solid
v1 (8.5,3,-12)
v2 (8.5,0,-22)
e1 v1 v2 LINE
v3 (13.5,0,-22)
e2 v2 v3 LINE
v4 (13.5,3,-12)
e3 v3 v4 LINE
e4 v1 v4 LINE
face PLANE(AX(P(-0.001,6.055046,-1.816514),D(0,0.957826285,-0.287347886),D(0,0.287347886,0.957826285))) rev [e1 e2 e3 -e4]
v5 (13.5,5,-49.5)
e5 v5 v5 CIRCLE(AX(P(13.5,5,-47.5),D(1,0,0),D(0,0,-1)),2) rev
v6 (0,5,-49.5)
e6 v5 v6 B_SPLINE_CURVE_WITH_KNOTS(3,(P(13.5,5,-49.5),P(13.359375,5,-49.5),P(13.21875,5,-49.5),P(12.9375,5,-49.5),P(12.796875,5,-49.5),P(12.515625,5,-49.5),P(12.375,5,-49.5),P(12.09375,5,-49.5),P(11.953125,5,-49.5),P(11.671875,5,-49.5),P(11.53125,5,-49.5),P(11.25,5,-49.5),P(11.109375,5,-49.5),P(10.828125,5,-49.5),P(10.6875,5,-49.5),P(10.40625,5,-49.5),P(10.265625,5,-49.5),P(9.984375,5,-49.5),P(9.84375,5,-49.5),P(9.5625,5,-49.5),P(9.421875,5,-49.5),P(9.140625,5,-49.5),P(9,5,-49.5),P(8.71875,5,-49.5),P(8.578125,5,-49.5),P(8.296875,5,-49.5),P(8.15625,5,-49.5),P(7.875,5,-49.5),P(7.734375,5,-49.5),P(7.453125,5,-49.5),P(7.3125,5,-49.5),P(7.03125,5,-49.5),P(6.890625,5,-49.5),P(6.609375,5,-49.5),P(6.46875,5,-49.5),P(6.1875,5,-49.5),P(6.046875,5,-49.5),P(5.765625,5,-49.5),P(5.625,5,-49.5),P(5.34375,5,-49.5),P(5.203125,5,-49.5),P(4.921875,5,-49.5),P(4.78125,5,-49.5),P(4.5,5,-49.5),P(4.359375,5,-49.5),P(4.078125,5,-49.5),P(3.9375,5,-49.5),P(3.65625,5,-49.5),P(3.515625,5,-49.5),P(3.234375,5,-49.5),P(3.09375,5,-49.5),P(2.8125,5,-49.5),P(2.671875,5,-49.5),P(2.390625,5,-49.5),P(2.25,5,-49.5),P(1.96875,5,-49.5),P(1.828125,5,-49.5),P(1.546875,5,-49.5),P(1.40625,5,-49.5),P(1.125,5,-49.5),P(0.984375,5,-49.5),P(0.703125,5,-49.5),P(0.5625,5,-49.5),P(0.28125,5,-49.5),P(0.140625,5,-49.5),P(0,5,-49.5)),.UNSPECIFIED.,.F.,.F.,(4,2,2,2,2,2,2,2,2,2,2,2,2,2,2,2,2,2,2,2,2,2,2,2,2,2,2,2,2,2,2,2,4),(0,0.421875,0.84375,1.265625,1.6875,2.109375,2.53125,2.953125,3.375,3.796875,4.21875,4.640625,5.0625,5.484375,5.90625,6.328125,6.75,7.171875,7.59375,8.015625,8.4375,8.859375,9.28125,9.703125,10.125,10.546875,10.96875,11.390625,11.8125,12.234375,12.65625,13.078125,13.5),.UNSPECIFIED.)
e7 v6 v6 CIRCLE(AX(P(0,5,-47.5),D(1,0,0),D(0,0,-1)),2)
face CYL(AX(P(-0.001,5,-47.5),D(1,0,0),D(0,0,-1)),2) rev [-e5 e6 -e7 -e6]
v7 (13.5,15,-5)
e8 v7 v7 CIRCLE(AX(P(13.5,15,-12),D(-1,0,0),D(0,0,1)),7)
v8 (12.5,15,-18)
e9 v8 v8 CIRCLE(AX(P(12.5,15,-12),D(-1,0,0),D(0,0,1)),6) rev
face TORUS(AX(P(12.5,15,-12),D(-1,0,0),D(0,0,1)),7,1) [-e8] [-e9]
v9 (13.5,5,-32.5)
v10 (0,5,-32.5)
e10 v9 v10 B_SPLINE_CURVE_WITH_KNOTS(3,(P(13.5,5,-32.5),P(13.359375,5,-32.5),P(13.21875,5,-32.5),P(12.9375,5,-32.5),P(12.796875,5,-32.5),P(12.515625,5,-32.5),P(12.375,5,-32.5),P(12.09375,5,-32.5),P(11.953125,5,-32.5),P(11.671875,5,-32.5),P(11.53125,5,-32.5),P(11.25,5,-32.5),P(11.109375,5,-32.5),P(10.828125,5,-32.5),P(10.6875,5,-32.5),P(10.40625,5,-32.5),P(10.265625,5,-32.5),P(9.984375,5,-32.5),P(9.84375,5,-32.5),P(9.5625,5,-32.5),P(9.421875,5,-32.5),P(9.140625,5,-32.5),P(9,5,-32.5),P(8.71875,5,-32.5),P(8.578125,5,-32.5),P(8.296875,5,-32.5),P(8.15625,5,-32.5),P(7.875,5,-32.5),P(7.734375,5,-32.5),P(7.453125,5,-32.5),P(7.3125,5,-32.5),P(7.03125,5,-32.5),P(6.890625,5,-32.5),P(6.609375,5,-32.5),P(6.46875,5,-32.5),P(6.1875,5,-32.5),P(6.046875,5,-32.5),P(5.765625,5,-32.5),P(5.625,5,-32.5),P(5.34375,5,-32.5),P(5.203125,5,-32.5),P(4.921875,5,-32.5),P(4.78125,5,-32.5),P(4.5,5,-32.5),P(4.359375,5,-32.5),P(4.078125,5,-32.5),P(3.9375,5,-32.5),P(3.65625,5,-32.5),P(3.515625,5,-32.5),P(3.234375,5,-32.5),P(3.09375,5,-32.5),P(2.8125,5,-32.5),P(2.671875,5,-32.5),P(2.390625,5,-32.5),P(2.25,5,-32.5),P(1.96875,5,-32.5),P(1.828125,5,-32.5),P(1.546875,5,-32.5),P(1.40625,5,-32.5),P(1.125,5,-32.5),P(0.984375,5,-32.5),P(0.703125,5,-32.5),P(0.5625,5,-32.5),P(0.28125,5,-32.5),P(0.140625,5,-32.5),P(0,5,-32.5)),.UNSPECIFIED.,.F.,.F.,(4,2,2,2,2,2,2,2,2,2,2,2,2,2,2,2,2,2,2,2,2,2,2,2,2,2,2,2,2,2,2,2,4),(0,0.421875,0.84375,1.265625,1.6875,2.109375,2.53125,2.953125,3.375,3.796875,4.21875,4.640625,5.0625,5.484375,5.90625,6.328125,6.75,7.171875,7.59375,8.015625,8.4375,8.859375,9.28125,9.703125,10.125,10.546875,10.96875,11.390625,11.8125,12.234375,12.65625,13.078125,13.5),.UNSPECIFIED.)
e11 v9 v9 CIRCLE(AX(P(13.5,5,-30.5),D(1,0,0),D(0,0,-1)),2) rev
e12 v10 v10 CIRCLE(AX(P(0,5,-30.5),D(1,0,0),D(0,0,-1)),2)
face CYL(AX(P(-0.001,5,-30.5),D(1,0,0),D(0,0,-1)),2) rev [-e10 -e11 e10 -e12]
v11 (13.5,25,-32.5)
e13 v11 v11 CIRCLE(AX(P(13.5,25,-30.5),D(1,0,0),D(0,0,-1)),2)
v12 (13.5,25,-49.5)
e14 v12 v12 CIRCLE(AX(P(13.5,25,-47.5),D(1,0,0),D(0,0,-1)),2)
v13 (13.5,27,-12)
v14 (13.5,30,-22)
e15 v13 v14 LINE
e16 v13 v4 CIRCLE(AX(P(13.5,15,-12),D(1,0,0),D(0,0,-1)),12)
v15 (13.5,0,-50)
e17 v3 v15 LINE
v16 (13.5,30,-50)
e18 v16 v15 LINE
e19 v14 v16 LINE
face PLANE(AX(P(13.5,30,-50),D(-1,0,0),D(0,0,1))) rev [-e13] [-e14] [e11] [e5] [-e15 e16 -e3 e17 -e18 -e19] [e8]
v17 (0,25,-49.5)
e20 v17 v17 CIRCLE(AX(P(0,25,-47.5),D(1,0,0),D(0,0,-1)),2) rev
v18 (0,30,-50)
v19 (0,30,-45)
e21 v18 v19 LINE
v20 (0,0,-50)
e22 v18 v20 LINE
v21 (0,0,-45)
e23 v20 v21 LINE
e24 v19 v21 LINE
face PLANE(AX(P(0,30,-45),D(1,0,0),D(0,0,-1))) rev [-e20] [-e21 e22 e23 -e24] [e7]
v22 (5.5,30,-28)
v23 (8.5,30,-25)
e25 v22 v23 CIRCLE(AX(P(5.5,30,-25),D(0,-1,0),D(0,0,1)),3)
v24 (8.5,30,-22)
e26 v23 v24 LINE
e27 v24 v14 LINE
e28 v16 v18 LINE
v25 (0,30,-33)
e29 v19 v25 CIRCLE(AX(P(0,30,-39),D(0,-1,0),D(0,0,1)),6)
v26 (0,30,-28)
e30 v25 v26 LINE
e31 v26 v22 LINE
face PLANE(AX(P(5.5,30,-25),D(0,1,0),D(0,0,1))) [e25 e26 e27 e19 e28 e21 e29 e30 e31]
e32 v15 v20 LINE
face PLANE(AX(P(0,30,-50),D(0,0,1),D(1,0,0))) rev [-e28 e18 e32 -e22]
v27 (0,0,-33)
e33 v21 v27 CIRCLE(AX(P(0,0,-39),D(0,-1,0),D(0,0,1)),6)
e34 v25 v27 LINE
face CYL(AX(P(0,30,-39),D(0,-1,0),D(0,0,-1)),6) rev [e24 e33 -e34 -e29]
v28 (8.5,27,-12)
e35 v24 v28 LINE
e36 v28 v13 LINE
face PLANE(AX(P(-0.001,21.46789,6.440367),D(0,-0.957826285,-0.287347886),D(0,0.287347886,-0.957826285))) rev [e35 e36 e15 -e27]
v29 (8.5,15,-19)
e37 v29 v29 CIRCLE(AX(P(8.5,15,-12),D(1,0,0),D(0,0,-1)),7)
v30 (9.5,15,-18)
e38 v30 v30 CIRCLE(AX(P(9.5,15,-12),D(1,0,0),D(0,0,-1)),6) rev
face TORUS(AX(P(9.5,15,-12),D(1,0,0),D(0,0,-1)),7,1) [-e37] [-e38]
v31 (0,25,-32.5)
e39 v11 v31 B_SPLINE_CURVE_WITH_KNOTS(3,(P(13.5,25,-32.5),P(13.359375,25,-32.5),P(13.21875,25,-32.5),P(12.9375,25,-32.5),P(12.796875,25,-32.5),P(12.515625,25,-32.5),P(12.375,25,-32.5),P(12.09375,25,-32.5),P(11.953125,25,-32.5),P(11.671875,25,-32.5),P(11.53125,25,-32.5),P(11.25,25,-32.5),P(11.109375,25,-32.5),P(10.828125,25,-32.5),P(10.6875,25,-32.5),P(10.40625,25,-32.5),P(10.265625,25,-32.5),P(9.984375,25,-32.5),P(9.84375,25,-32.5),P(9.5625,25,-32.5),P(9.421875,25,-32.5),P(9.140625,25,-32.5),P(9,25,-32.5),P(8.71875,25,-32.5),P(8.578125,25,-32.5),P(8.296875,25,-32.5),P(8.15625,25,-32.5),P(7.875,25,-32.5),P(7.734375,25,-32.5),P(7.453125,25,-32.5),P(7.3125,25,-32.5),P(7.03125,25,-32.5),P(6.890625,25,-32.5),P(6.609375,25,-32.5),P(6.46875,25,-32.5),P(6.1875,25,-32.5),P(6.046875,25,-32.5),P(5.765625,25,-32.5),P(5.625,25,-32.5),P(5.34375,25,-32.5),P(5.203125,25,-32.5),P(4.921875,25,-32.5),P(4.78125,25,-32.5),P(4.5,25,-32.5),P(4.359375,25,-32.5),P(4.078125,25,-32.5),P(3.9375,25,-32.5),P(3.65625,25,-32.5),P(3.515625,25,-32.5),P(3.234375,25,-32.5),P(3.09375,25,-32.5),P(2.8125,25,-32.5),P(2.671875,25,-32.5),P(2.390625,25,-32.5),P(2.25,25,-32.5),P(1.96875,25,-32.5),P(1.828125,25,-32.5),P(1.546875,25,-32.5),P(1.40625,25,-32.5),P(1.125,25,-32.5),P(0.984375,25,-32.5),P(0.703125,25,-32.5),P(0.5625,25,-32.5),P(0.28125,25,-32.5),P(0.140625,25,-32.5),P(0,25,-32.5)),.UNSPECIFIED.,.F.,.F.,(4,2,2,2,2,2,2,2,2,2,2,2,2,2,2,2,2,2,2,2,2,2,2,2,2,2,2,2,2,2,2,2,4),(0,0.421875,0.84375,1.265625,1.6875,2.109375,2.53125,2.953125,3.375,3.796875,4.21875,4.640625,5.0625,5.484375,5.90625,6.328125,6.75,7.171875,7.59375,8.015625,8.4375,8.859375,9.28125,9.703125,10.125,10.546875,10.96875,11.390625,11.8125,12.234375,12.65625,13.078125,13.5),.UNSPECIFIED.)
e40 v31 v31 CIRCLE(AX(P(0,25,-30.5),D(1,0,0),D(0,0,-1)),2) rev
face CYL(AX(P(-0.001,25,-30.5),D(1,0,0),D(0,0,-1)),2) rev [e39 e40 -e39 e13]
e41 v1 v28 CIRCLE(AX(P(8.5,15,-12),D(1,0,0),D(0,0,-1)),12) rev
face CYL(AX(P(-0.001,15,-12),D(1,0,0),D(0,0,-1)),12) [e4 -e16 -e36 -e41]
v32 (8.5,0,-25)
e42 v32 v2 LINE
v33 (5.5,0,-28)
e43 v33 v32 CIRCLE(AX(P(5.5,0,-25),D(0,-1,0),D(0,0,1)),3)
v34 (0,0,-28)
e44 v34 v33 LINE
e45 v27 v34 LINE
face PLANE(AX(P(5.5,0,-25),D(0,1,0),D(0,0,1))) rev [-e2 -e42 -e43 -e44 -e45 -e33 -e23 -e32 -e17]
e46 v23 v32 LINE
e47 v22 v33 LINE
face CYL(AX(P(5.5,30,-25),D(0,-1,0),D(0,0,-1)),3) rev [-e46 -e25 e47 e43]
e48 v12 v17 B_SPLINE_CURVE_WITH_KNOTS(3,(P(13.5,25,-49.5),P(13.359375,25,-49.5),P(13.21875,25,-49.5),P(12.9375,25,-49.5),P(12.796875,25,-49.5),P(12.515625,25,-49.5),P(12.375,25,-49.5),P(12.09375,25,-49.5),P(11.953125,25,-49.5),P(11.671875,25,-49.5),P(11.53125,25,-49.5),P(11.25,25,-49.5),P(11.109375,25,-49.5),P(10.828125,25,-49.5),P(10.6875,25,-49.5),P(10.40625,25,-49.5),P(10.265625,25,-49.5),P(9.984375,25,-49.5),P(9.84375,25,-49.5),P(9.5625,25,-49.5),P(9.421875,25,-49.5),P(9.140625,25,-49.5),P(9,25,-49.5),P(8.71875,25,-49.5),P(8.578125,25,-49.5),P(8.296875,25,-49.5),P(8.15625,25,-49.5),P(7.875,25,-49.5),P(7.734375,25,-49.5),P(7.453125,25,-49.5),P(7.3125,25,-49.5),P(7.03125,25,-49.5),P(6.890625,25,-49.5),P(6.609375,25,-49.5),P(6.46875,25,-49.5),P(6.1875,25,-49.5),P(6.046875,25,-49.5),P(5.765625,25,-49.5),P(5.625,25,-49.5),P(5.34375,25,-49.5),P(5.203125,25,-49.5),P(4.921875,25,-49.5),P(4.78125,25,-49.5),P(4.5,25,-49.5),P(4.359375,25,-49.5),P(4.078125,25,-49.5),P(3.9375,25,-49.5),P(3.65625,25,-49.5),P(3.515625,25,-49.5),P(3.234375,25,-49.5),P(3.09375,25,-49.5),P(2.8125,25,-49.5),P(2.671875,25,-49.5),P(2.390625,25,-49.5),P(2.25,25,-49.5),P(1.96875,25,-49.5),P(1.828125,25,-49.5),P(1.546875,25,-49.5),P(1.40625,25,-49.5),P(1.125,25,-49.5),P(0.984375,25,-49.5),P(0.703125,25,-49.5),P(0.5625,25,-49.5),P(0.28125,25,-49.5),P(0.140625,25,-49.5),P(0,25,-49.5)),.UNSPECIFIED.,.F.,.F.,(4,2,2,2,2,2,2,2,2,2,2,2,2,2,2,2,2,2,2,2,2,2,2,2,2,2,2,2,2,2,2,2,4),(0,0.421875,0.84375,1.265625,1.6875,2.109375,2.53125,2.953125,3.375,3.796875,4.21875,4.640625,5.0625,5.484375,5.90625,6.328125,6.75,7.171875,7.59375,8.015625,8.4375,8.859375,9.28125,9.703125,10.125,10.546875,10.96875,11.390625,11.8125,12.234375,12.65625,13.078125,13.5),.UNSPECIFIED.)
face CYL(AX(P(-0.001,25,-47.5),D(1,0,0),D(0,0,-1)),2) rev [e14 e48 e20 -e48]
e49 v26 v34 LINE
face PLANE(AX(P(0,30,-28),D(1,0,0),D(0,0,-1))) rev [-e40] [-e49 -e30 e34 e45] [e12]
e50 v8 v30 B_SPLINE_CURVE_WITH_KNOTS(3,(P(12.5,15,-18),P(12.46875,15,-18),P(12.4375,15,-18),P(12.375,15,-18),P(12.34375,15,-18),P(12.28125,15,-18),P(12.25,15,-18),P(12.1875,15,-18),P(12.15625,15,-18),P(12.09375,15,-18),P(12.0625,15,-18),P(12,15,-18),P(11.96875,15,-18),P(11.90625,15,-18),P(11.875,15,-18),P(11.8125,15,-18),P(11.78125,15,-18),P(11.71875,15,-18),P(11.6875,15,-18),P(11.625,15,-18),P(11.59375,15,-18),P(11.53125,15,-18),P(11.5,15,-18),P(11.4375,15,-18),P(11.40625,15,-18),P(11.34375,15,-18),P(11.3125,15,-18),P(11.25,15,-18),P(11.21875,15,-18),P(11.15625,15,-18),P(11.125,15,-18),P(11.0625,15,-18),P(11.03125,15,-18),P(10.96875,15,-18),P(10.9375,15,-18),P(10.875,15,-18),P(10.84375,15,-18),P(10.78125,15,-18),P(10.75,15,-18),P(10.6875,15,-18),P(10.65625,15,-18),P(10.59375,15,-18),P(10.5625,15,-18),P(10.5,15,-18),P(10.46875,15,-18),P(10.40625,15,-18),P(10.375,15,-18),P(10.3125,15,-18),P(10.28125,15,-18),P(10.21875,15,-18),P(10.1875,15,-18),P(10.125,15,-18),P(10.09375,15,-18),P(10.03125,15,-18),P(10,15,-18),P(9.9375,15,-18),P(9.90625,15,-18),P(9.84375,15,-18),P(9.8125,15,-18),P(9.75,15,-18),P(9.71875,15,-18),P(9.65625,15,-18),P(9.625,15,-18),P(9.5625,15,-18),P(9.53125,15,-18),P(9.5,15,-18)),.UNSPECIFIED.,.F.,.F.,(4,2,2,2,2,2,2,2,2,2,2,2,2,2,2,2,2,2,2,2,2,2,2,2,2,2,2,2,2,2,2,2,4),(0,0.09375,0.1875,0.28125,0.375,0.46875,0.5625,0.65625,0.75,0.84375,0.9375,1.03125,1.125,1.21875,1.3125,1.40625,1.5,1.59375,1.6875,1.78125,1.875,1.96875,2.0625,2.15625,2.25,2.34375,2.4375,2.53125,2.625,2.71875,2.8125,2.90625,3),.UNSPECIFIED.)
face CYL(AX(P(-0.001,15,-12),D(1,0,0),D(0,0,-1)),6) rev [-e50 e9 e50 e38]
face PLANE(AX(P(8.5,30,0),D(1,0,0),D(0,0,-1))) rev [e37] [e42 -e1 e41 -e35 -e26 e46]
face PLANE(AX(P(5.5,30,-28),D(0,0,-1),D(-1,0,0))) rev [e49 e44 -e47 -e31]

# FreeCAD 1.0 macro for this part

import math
import FreeCAD as App
import Part
import Sketcher


def edges_at(feature, points):
    """Names of the edges that pass closest to the given points."""
    edges = feature.Shape.Edges
    near = lambda p: min(range(len(edges)), key=lambda i: edges[i].distToShape(Part.Vertex(*p))[0])
    return sorted({f"Edge{near(p) + 1}" for p in points})

doc = App.newDocument("Part")
body = doc.addObject("PartDesign::Body", "Body")

# Sketch on XZ plane
sketch1 = doc.addObject("Sketcher::SketchObject", "Sketch")
body.addObject(sketch1)
sketch1.AttachmentSupport = (doc.XZ_Plane, [""])
sketch1.MapMode = "FlatFace"
sketch1.addGeometry([
    Part.LineSegment(App.Vector(13.5, -50, 0), App.Vector(0, -50, 0)),  # 0
    Part.LineSegment(App.Vector(0, -50, 0), App.Vector(0, -45, 0)),  # 1
    Part.ArcOfCircle(Part.Circle(App.Vector(0, -39, 0), App.Vector(0, 0, 1), 6), math.radians(-90), math.radians(90)),  # 2
    Part.LineSegment(App.Vector(0, -33, 0), App.Vector(0, -28, 0)),  # 3
    Part.LineSegment(App.Vector(0, -28, 0), App.Vector(5.5, -28, 0)),  # 4
    Part.ArcOfCircle(Part.Circle(App.Vector(5.5, -25, 0), App.Vector(0, 0, 1), 3), math.radians(-90), math.radians(0)),  # 5
    Part.LineSegment(App.Vector(8.5, -25, 0), App.Vector(8.5, 0, 0)),  # 6
    Part.LineSegment(App.Vector(8.5, 0, 0), App.Vector(13.5, 0, 0)),  # 7
    Part.LineSegment(App.Vector(13.5, 0, 0), App.Vector(13.5, -50, 0)),  # 8
], False)
sketch1.addConstraint([
    Sketcher.Constraint("Coincident", 0, 2, 1, 1),
    Sketcher.Constraint("Coincident", 1, 2, 2, 1),
    Sketcher.Constraint("Coincident", 2, 2, 3, 1),
    Sketcher.Constraint("Coincident", 3, 2, 4, 1),
    Sketcher.Constraint("Tangent", 4, 2, 5, 1),
    Sketcher.Constraint("Tangent", 5, 2, 6, 1),
    Sketcher.Constraint("Coincident", 6, 2, 7, 1),
    Sketcher.Constraint("Coincident", 7, 2, 8, 1),
    Sketcher.Constraint("Coincident", 8, 2, 0, 1),
    Sketcher.Constraint("Horizontal", 0),
    Sketcher.Constraint("Vertical", 1),
    Sketcher.Constraint("Vertical", 3),
    Sketcher.Constraint("Horizontal", 4),
    Sketcher.Constraint("Vertical", 6),
    Sketcher.Constraint("Horizontal", 7),
    Sketcher.Constraint("Vertical", 8),
    Sketcher.Constraint("PointOnObject", 2, 3, -2),
    Sketcher.Constraint("PointOnObject", 0, 2, -2),
    Sketcher.Constraint("PointOnObject", 2, 2, -2),
    Sketcher.Constraint("PointOnObject", 6, 2, -1),
    Sketcher.Constraint("Equal", 7, 1),
    Sketcher.Constraint("Equal", 1, 3),
    Sketcher.Constraint("Radius", 2, 6.0),
    Sketcher.Constraint("Radius", 5, 3.0),
    Sketcher.Constraint("DistanceX", 7, 1, 7, 2, 5.0),
    Sketcher.Constraint("DistanceY", 6, 1, 6, 2, 25.0),
    Sketcher.Constraint("DistanceX", 0, 2, 0, 1, 13.5),
])
pad1 = doc.addObject("PartDesign::Pad", "Pad")
body.addObject(pad1)
pad1.Profile = sketch1
pad1.Length = 30
pad1.Reversed = True

# Sketch on YZ plane
sketch2 = doc.addObject("Sketcher::SketchObject", "Sketch001")
body.addObject(sketch2)
sketch2.AttachmentSupport = (doc.YZ_Plane, [""])
sketch2.MapMode = "FlatFace"
sketch2.AttachmentOffset = App.Placement(App.Vector(0, 0, 13.5), App.Rotation())
sketch2.addGeometry([
    Part.ArcOfCircle(Part.Circle(App.Vector(15, -12, 0), App.Vector(0, 0, 1), 12), math.radians(0), math.radians(90)),
    Part.LineSegment(App.Vector(27, -12, 0), App.Vector(30, -22, 0)),
    Part.LineSegment(App.Vector(30, -22, 0), App.Vector(30, 0, 0)),
    Part.LineSegment(App.Vector(30, 0, 0), App.Vector(15, 0, 0)),
], False)
sketch2.addConstraint([
    Sketcher.Constraint("Coincident", 0, 1, 1, 1),
    Sketcher.Constraint("Coincident", 1, 2, 2, 1),
    Sketcher.Constraint("Coincident", 2, 2, 3, 1),
    Sketcher.Constraint("Tangent", 3, 2, 0, 2),
    Sketcher.Constraint("Vertical", 2),
    Sketcher.Constraint("Horizontal", 3),
    Sketcher.Constraint("PointOnObject", 2, 2, -1),
    Sketcher.Constraint("Radius", 0, 12.0),
    Sketcher.Constraint("DistanceX", 3, 2, 3, 1, 15.0),
    Sketcher.Constraint("DistanceY", 2, 1, 2, 2, 22.0),
    Sketcher.Constraint("DistanceX", -1, 1, 0, 3, 15.0),
    Sketcher.Constraint("DistanceY", 0, 1, -1, 1, 12.0),
])
pocket1 = doc.addObject("PartDesign::Pocket", "Pocket")
body.addObject(pocket1)
pocket1.Profile = sketch2
pocket1.Type = "UpToFirst"

# Sketch on YZ plane
sketch3 = doc.addObject("Sketcher::SketchObject", "Sketch002")
body.addObject(sketch3)
sketch3.AttachmentSupport = (doc.YZ_Plane, [""])
sketch3.MapMode = "FlatFace"
sketch3.AttachmentOffset = App.Placement(App.Vector(0, 0, 13.5), App.Rotation())
sketch3.addGeometry([
    Part.ArcOfCircle(Part.Circle(App.Vector(15, -12, 0), App.Vector(0, 0, 1), 12), math.radians(90), math.radians(180)),
    Part.LineSegment(App.Vector(15, 0, 0), App.Vector(0, 0, 0)),
    Part.LineSegment(App.Vector(0, 0, 0), App.Vector(0, -22, 0)),
    Part.LineSegment(App.Vector(0, -22, 0), App.Vector(3, -12, 0)),
], False)
sketch3.addConstraint([
    Sketcher.Constraint("Tangent", 0, 1, 1, 1),
    Sketcher.Constraint("Coincident", 1, 2, 2, 1),
    Sketcher.Constraint("Coincident", 2, 2, 3, 1),
    Sketcher.Constraint("Coincident", 3, 2, 0, 2),
    Sketcher.Constraint("Horizontal", 1),
    Sketcher.Constraint("Vertical", 2),
    Sketcher.Constraint("Coincident", 1, 2, -1, 1),
    Sketcher.Constraint("Horizontal", 0, 3, 3, 2),
    Sketcher.Constraint("Radius", 0, 12.0),
    Sketcher.Constraint("DistanceX", 1, 2, 1, 1, 15.0),
    Sketcher.Constraint("DistanceY", 2, 2, 2, 1, 22.0),
])
pocket2 = doc.addObject("PartDesign::Pocket", "Pocket001")
body.addObject(pocket2)
pocket2.Profile = sketch3
pocket2.Type = "UpToFirst"

# Sketch on YZ plane
sketch4 = doc.addObject("Sketcher::SketchObject", "Sketch003")
body.addObject(sketch4)
sketch4.AttachmentSupport = (doc.YZ_Plane, [""])
sketch4.MapMode = "FlatFace"
sketch4.AttachmentOffset = App.Placement(App.Vector(0, 0, 13.5), App.Rotation())
sketch4.addGeometry(Part.Circle(App.Vector(5, -30.5, 0), App.Vector(0, 0, 1), 2), False)
sketch4.addConstraint([
    Sketcher.Constraint("Diameter", 0, 4.0),
    Sketcher.Constraint("DistanceX", -1, 1, 0, 3, 5.0),
    Sketcher.Constraint("DistanceY", 0, 3, -1, 1, 30.5),
])
pocket3 = doc.addObject("PartDesign::Pocket", "Pocket002")
body.addObject(pocket3)
pocket3.Profile = sketch4
pocket3.Type = "UpToFirst"

# Sketch on YZ plane
sketch5 = doc.addObject("Sketcher::SketchObject", "Sketch004")
body.addObject(sketch5)
sketch5.AttachmentSupport = (doc.YZ_Plane, [""])
sketch5.MapMode = "FlatFace"
sketch5.AttachmentOffset = App.Placement(App.Vector(0, 0, 13.5), App.Rotation())
sketch5.addGeometry(Part.Circle(App.Vector(5, -47.5, 0), App.Vector(0, 0, 1), 2), False)
sketch5.addConstraint([
    Sketcher.Constraint("Diameter", 0, 4.0),
    Sketcher.Constraint("DistanceX", -1, 1, 0, 3, 5.0),
    Sketcher.Constraint("DistanceY", 0, 3, -1, 1, 47.5),
])
pocket4 = doc.addObject("PartDesign::Pocket", "Pocket003")
body.addObject(pocket4)
pocket4.Profile = sketch5
pocket4.Type = "UpToFirst"

# Sketch on YZ plane
sketch6 = doc.addObject("Sketcher::SketchObject", "Sketch005")
body.addObject(sketch6)
sketch6.AttachmentSupport = (doc.YZ_Plane, [""])
sketch6.MapMode = "FlatFace"
sketch6.AttachmentOffset = App.Placement(App.Vector(0, 0, 13.5), App.Rotation())
sketch6.addGeometry(Part.Circle(App.Vector(5, -47.5, 0), App.Vector(0, 0, 1), 2), False)
sketch6.addConstraint([
    Sketcher.Constraint("Diameter", 0, 4.0),
    Sketcher.Constraint("DistanceX", -1, 1, 0, 3, 5.0),
    Sketcher.Constraint("DistanceY", 0, 3, -1, 1, 47.5),
])
pocket5 = doc.addObject("PartDesign::Pocket", "Pocket004")
body.addObject(pocket5)
pocket5.Profile = sketch6
pocket5.Length = 13.5

# Sketch on YZ plane
sketch7 = doc.addObject("Sketcher::SketchObject", "Sketch006")
body.addObject(sketch7)
sketch7.AttachmentSupport = (doc.YZ_Plane, [""])
sketch7.MapMode = "FlatFace"
sketch7.AttachmentOffset = App.Placement(App.Vector(0, 0, 13.5), App.Rotation())
sketch7.addGeometry(Part.Circle(App.Vector(15, -12, 0), App.Vector(0, 0, 1), 6), False)
sketch7.addConstraint([
    Sketcher.Constraint("Diameter", 0, 12.0),
    Sketcher.Constraint("DistanceX", -1, 1, 0, 3, 15.0),
    Sketcher.Constraint("DistanceY", 0, 3, -1, 1, 12.0),
])
pocket6 = doc.addObject("PartDesign::Pocket", "Pocket005")
body.addObject(pocket6)
pocket6.Profile = sketch7
pocket6.Type = "UpToFirst"

# Sketch on YZ plane
sketch8 = doc.addObject("Sketcher::SketchObject", "Sketch007")
body.addObject(sketch8)
sketch8.AttachmentSupport = (doc.YZ_Plane, [""])
sketch8.MapMode = "FlatFace"
sketch8.AttachmentOffset = App.Placement(App.Vector(0, 0, 13.5), App.Rotation())
sketch8.addGeometry(Part.Circle(App.Vector(25, -30.5, 0), App.Vector(0, 0, 1), 2), False)
sketch8.addConstraint([
    Sketcher.Constraint("Diameter", 0, 4.0),
    Sketcher.Constraint("DistanceX", -1, 1, 0, 3, 25.0),
    Sketcher.Constraint("DistanceY", 0, 3, -1, 1, 30.5),
])
pocket7 = doc.addObject("PartDesign::Pocket", "Pocket006")
body.addObject(pocket7)
pocket7.Profile = sketch8
pocket7.Type = "UpToFirst"

# Sketch on YZ plane
sketch9 = doc.addObject("Sketcher::SketchObject", "Sketch008")
body.addObject(sketch9)
sketch9.AttachmentSupport = (doc.YZ_Plane, [""])
sketch9.MapMode = "FlatFace"
sketch9.AttachmentOffset = App.Placement(App.Vector(0, 0, 13.5), App.Rotation())
sketch9.addGeometry(Part.Circle(App.Vector(25, -47.5, 0), App.Vector(0, 0, 1), 2), False)
sketch9.addConstraint([
    Sketcher.Constraint("Diameter", 0, 4.0),
    Sketcher.Constraint("DistanceX", -1, 1, 0, 3, 25.0),
    Sketcher.Constraint("DistanceY", 0, 3, -1, 1, 47.5),
])
pocket8 = doc.addObject("PartDesign::Pocket", "Pocket007")
body.addObject(pocket8)
pocket8.Profile = sketch9
pocket8.Type = "UpToFirst"
doc.recompute()

fillet = doc.addObject("PartDesign::Fillet", "Fillet")
body.addObject(fillet)
fillet.Base = (pocket8, edges_at(pocket8, [(13.5, 15, -6), (8.5, 15, -6)]))
fillet.Radius = 1

doc.recompute()
